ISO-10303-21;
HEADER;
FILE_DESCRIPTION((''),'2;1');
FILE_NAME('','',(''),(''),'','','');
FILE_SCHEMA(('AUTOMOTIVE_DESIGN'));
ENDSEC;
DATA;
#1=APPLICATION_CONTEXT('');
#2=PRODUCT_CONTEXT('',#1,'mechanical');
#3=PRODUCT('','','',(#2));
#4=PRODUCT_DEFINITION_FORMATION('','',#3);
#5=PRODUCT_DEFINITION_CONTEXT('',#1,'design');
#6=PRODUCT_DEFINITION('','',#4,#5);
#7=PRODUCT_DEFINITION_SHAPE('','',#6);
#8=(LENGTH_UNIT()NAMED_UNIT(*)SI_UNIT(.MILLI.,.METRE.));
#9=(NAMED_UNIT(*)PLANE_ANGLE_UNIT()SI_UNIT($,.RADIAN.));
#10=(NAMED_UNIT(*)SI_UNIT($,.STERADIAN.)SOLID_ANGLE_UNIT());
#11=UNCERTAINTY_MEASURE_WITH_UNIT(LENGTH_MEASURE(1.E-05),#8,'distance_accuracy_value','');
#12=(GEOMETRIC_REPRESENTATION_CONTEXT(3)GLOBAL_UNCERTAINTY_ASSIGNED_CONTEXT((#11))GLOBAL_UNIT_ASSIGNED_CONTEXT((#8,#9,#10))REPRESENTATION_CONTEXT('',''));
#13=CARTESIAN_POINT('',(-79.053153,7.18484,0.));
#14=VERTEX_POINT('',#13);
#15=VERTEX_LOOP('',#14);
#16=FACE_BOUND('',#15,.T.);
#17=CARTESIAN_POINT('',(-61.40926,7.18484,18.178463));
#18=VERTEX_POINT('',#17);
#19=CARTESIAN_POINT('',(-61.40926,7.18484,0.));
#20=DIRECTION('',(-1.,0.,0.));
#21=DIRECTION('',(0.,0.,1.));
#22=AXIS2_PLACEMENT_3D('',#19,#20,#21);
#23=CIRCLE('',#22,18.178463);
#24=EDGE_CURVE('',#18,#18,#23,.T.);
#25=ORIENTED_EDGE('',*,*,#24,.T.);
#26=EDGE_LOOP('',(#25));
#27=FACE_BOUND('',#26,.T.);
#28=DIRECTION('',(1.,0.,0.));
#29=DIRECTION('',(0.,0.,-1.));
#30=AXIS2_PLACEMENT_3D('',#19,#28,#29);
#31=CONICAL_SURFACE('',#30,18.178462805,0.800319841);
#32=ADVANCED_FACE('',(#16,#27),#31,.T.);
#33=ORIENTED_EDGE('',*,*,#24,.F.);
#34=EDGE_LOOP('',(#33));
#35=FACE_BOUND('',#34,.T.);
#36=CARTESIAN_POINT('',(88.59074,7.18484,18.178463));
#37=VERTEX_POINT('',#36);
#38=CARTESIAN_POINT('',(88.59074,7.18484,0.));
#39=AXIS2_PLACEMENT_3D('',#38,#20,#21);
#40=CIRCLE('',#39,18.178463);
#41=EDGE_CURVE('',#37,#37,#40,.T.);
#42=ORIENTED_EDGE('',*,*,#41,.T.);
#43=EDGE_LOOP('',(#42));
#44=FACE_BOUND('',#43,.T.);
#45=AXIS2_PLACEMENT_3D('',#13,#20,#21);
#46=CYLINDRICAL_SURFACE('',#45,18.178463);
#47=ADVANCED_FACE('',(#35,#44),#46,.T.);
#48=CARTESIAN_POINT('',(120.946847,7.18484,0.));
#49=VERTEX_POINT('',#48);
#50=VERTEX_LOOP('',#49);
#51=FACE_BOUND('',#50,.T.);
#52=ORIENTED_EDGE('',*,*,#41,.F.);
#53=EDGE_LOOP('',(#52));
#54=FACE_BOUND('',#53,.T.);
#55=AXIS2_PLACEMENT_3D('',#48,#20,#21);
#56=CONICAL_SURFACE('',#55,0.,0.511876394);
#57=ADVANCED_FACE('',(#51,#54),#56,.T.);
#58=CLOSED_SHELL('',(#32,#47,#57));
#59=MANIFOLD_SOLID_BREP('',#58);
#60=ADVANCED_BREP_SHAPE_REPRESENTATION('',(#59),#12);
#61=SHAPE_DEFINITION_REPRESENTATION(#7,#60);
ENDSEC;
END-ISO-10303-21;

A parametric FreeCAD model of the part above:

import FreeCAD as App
import Part
import Sketcher

V = App.Vector
Q = App.Units.Quantity


def add_polygon(sketch, points):
    """Adds a closed chain of lines whose ends are joined by coincident constraints."""
    first, n = sketch.GeometryCount, len(points)
    for a, b in zip(points, points[1:] + points[:1]):
        sketch.addGeometry(Part.LineSegment(App.Vector(*a, 0), App.Vector(*b, 0)), False)
    for i in range(n):
        sketch.addConstraint(Sketcher.Constraint("Coincident", first + i, 2, first + (i + 1) % n, 1))

doc = App.newDocument("Part")
body = doc.addObject("PartDesign::Body", "Body")

sketch1 = doc.addObject("Sketcher::SketchObject", "Sketch")
body.addObject(sketch1)
sketch1.AttachmentSupport = (doc.XY_Plane, [""])
sketch1.MapMode = "FlatFace"
add_polygon(sketch1, [(-79, 7), (121, 7), (89, 25), (-61, 25)])
sketch1.addGeometry(Part.LineSegment(V(-79, 7, 0), V(121, 7, 0)), True)
sketch1.addConstraint(Sketcher.Constraint("Horizontal", 0))
sketch1.addConstraint(Sketcher.Constraint("Horizontal", 2))
sketch1.addConstraint(Sketcher.Constraint("Horizontal", 4))
sketch1.addConstraint(Sketcher.Constraint("Coincident", 4, 1, 3, 2))
sketch1.addConstraint(Sketcher.Constraint("Equal", 0, 4))
sketch1.addConstraint(Sketcher.Constraint("DistanceX", 0, 1, 0, 2, Q("200 mm")))
sketch1.addConstraint(Sketcher.Constraint("DistanceX", 2, 2, 2, 1, Q("150 mm")))
sketch1.addConstraint(Sketcher.Constraint("Distance", 1, Q("37.112992 mm")))
sketch1.addConstraint(Sketcher.Constraint("Distance", 3, Q("25.333051 mm")))
sketch1.addConstraint(Sketcher.Constraint("DistanceY", -1, 1, 0, 2, Q("7.18484 mm")))
sketch1.addConstraint(Sketcher.Constraint("DistanceX", -1, 1, 1, 2, Q("88.59074 mm")))
revolution = doc.addObject("PartDesign::Revolution", "Revolution")
body.addObject(revolution)
revolution.Profile = sketch1
revolution.ReferenceAxis = (sketch1, ["Axis0"])
revolution.Angle = 360

doc.recompute()
